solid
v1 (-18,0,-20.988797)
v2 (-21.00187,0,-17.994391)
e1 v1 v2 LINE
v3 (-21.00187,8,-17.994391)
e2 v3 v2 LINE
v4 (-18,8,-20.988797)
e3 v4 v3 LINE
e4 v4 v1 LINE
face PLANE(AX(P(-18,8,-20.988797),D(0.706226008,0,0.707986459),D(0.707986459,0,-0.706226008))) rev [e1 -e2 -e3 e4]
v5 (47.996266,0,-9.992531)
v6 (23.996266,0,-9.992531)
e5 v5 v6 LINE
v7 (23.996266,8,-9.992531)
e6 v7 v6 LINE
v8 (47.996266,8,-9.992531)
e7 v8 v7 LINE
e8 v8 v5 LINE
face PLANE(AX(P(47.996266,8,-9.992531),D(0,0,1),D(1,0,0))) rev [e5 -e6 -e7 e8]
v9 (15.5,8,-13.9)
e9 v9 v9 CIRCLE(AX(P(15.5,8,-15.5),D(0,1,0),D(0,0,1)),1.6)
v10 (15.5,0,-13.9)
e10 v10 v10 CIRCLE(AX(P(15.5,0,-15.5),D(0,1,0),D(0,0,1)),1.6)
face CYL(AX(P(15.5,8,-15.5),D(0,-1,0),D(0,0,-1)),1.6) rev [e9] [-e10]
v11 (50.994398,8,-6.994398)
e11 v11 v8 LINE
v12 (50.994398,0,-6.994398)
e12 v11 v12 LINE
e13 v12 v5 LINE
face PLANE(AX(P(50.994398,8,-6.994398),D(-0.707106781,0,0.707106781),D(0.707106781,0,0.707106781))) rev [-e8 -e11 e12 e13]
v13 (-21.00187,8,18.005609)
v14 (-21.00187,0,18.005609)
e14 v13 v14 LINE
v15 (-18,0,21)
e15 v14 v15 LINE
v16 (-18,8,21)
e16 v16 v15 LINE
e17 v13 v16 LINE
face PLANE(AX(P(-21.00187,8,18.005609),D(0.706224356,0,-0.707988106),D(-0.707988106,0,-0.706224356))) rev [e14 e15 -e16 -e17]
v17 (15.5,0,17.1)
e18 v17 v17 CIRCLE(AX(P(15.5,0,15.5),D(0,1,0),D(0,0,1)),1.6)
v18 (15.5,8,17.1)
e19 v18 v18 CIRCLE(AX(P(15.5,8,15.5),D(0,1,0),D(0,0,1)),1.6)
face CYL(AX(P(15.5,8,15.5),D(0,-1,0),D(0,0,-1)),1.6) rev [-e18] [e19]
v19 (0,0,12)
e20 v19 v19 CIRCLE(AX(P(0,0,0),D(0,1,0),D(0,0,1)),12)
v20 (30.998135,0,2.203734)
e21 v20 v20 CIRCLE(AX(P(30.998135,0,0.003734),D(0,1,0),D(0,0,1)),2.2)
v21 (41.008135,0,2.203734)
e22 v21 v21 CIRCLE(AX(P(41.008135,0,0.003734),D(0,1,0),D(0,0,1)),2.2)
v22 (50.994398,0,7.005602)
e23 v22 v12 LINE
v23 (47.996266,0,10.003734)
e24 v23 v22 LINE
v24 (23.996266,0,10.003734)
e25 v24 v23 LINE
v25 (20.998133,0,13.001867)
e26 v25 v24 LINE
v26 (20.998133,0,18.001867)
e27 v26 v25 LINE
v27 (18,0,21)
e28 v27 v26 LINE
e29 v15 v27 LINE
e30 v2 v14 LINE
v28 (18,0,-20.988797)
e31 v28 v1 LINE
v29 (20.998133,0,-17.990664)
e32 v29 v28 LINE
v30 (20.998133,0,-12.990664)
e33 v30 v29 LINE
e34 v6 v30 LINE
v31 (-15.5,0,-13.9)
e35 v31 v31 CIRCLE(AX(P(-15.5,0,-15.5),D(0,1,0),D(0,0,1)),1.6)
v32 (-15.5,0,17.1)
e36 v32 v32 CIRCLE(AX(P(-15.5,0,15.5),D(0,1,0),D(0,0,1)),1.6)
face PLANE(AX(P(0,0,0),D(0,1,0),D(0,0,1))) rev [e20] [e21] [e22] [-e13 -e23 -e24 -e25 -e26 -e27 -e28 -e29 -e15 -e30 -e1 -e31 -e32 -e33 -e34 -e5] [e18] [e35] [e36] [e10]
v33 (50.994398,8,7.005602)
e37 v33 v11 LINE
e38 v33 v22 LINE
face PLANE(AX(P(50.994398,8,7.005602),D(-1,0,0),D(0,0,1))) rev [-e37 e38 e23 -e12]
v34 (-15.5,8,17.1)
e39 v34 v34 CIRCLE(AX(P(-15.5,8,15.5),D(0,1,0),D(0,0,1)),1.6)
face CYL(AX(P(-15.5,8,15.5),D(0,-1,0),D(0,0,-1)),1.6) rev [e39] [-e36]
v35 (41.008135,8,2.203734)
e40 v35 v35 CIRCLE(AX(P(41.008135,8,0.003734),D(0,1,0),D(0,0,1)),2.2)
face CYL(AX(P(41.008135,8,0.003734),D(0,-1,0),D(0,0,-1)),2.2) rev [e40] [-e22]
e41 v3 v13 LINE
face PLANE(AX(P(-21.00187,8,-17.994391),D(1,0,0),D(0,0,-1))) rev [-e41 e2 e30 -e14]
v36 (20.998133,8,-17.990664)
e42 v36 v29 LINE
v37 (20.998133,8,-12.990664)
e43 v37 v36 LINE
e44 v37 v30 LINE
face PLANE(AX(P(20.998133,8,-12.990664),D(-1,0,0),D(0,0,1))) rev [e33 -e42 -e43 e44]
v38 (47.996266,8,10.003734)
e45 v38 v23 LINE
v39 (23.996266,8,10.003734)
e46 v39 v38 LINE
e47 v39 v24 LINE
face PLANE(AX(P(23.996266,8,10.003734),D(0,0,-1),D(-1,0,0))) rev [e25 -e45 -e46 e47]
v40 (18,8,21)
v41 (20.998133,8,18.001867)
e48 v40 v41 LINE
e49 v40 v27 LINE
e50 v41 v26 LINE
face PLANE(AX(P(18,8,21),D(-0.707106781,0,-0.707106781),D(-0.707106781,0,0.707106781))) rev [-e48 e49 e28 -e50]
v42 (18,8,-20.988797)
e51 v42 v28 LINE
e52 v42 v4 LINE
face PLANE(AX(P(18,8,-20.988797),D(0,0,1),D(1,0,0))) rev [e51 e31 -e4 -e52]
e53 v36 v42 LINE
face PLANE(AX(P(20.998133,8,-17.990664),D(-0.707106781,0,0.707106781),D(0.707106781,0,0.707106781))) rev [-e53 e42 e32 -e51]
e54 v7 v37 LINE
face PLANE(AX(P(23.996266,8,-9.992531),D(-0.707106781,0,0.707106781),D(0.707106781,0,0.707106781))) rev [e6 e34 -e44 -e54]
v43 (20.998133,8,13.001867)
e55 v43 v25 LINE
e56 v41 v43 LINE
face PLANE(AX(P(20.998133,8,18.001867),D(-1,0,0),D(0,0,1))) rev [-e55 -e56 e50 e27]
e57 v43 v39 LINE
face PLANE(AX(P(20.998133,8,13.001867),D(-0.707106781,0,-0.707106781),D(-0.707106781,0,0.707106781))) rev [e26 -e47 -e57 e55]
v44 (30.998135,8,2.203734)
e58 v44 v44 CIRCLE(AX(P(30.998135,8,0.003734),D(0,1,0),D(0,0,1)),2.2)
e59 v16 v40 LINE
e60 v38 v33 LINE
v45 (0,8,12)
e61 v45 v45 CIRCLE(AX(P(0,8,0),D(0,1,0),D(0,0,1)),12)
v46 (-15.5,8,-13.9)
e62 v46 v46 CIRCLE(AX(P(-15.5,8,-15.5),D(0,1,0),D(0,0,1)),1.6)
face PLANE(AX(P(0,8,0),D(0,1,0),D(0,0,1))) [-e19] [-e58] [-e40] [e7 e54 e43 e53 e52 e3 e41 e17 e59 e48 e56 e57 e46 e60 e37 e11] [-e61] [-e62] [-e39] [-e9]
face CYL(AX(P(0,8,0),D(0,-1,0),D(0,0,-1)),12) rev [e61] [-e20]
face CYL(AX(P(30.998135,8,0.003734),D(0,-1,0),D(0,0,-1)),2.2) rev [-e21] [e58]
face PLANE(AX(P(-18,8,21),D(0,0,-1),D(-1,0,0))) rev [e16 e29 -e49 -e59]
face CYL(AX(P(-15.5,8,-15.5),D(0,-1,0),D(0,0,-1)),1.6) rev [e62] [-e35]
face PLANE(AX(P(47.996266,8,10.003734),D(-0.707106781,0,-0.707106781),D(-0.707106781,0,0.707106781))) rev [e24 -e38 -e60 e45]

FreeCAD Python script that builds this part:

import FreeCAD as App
import Part
import Sketcher
Q = App.Units.Quantity


def add_polygon(sketch, points):
    """Adds a closed chain of lines whose ends are joined by coincident constraints."""
    first, n = sketch.GeometryCount, len(points)
    for a, b in zip(points, points[1:] + points[:1]):
        sketch.addGeometry(Part.LineSegment(App.Vector(*a, 0), App.Vector(*b, 0)), False)
    for i in range(n):
        sketch.addConstraint(Sketcher.Constraint("Coincident", first + i, 2, first + (i + 1) % n, 1))

doc = App.newDocument("Part")
params = doc.addObject("Spreadsheet::Sheet", "Params")
for row, (alias, value) in enumerate([
    ("sketch1_diameter", "24 mm"),
    ("sketch1_diameter2", "3.2 mm"),
    ("sketch1_diameter3", "4.4 mm"),
    ("sketch1_width", "24 mm"),
    ("sketch1_width2", "36 mm"),
    ("pad1_length", "8 mm"),
], start=1):
    params.set(f"A{row}", alias)
    params.set(f"B{row}", "=" + value)
    params.setAlias(f"B{row}", alias)

body = doc.addObject("PartDesign::Body", "Body")

# Sketch on XZ plane
sketch1 = body.newObject("Sketcher::SketchObject", "Sketch")
sketch1.AttachmentSupport = (doc.getObject("XZ_Plane"), [""])
sketch1.MapMode = "FlatFace"
add_polygon(sketch1, [(18, 21), (21, 18), (21, 13), (24, 10), (48, 10), (51, 7), (51, -7), (48, -10), (24, -10), (21, -13), (21, -18), (18, -21), (-18, -21), (-21, -18), (-21, 18), (-18, 21)])  # lines 0-15
sketch1.addGeometry(Part.Circle(App.Vector(-15.5, 15.5, 0), App.Vector(0, 0, 1), 1.6), False)  # 16
sketch1.addGeometry(Part.Circle(App.Vector(15.5, 15.5, 0), App.Vector(0, 0, 1), 1.6), False)  # 17
sketch1.addGeometry(Part.Circle(App.Vector(31, 0, 0), App.Vector(0, 0, 1), 2.2), False)  # 18
sketch1.addGeometry(Part.Circle(App.Vector(41, 0, 0), App.Vector(0, 0, 1), 2.2), False)  # 19
sketch1.addGeometry(Part.Circle(App.Vector(0, 0, 0), App.Vector(0, 0, 1), 12), False)  # 20
sketch1.addGeometry(Part.Circle(App.Vector(-15.5, -15.5, 0), App.Vector(0, 0, 1), 1.6), False)  # 21
sketch1.addGeometry(Part.Circle(App.Vector(15.5, -15.5, 0), App.Vector(0, 0, 1), 1.6), False)  # 22
sketch1.addConstraint([
    Sketcher.Constraint("Vertical", 1),
    Sketcher.Constraint("Horizontal", 3),
    Sketcher.Constraint("Vertical", 5),
    Sketcher.Constraint("Horizontal", 7),
    Sketcher.Constraint("Vertical", 9),
    Sketcher.Constraint("Horizontal", 11),
    Sketcher.Constraint("Vertical", 13),
    Sketcher.Constraint("Horizontal", 15),
    Sketcher.Constraint("Coincident", 20, 3, -1, 1),
    Sketcher.Constraint("Equal", 16, 17),
    Sketcher.Constraint("Equal", 18, 19),
    Sketcher.Constraint("Equal", 17, 21),
    Sketcher.Constraint("Equal", 21, 22),
    Sketcher.Constraint("Symmetric", 17, 3, 21, 3, -1, 1),
    Sketcher.Constraint("Symmetric", 16, 3, 22, 3, -1, 1),
    Sketcher.Constraint("Symmetric", 16, 3, 17, 3, -2),
    Sketcher.Constraint("Parallel", 0, 2),
    Sketcher.Constraint("Parallel", 2, 4),
    Sketcher.Constraint("Perpendicular", 4, 6),
    Sketcher.Constraint("Parallel", 6, 8),
    Sketcher.Constraint("Parallel", 8, 10),
    Sketcher.Constraint("Horizontal", 18, 3, 19, 3),
    Sketcher.Constraint("Vertical", 3, 2, 6, 2),
    Sketcher.Constraint("Vertical", 2, 2, 7, 2),
    Sketcher.Constraint("Vertical", 1, 2, 8, 2),
    Sketcher.Constraint("Vertical", 11, 2, 14, 2),
    Sketcher.Constraint("Vertical", 10, 2, 15, 2),
    Sketcher.Constraint("Equal", 1, 9),
    Sketcher.Constraint("Equal", 15, 13),
    Sketcher.Constraint("Equal", 0, 2),
    Sketcher.Constraint("Equal", 2, 4),
    Sketcher.Constraint("Equal", 4, 6),
    Sketcher.Constraint("Equal", 10, 14),
    Sketcher.Constraint("Diameter", 20, Q("24 mm")),
    Sketcher.Constraint("Diameter", 16, Q("3.2 mm")),
    Sketcher.Constraint("Diameter", 18, Q("4.4 mm")),
    Sketcher.Constraint("DistanceX", 3, 1, 3, 2, Q("24 mm")),
    Sketcher.Constraint("DistanceX", 11, 2, 11, 1, Q("36 mm")),
    Sketcher.Constraint("DistanceY", 1, 2, 1, 1, Q("5 mm")),
    Sketcher.Constraint("DistanceY", 5, 2, 5, 1, Q("14 mm")),
    Sketcher.Constraint("DistanceX", -1, 1, 10, 2, Q("18 mm")),
    Sketcher.Constraint("DistanceY", -1, 1, 14, 2, Q("21 mm")),
    Sketcher.Constraint("DistanceX", 16, 3, 17, 3, Q("31 mm")),
    Sketcher.Constraint("DistanceY", 21, 3, 16, 3, Q("31 mm")),
    Sketcher.Constraint("DistanceY", 18, 3, 2, 2, Q("10 mm")),
    Sketcher.Constraint("Distance", 0, Q("4.24 mm")),
    Sketcher.Constraint("DistanceX", 18, 3, 19, 3, Q("10.01 mm")),
    Sketcher.Constraint("Distance", 12, Q("4.24001 mm")),
    Sketcher.Constraint("DistanceX", 2, 2, 18, 3, Q("7.00187 mm")),
])
sketch1.setExpression("Constraints[49]", "Params.sketch1_diameter")
sketch1.setExpression("Constraints[50]", "Params.sketch1_diameter2")
sketch1.setExpression("Constraints[51]", "Params.sketch1_diameter3")
sketch1.setExpression("Constraints[52]", "Params.sketch1_width")
sketch1.setExpression("Constraints[53]", "Params.sketch1_width2")
pad1 = body.newObject("PartDesign::Pad", "Pad")
pad1.Profile = sketch1
pad1.setExpression("Length", "Params.pad1_length")
pad1.Reversed = True

doc.recompute()
